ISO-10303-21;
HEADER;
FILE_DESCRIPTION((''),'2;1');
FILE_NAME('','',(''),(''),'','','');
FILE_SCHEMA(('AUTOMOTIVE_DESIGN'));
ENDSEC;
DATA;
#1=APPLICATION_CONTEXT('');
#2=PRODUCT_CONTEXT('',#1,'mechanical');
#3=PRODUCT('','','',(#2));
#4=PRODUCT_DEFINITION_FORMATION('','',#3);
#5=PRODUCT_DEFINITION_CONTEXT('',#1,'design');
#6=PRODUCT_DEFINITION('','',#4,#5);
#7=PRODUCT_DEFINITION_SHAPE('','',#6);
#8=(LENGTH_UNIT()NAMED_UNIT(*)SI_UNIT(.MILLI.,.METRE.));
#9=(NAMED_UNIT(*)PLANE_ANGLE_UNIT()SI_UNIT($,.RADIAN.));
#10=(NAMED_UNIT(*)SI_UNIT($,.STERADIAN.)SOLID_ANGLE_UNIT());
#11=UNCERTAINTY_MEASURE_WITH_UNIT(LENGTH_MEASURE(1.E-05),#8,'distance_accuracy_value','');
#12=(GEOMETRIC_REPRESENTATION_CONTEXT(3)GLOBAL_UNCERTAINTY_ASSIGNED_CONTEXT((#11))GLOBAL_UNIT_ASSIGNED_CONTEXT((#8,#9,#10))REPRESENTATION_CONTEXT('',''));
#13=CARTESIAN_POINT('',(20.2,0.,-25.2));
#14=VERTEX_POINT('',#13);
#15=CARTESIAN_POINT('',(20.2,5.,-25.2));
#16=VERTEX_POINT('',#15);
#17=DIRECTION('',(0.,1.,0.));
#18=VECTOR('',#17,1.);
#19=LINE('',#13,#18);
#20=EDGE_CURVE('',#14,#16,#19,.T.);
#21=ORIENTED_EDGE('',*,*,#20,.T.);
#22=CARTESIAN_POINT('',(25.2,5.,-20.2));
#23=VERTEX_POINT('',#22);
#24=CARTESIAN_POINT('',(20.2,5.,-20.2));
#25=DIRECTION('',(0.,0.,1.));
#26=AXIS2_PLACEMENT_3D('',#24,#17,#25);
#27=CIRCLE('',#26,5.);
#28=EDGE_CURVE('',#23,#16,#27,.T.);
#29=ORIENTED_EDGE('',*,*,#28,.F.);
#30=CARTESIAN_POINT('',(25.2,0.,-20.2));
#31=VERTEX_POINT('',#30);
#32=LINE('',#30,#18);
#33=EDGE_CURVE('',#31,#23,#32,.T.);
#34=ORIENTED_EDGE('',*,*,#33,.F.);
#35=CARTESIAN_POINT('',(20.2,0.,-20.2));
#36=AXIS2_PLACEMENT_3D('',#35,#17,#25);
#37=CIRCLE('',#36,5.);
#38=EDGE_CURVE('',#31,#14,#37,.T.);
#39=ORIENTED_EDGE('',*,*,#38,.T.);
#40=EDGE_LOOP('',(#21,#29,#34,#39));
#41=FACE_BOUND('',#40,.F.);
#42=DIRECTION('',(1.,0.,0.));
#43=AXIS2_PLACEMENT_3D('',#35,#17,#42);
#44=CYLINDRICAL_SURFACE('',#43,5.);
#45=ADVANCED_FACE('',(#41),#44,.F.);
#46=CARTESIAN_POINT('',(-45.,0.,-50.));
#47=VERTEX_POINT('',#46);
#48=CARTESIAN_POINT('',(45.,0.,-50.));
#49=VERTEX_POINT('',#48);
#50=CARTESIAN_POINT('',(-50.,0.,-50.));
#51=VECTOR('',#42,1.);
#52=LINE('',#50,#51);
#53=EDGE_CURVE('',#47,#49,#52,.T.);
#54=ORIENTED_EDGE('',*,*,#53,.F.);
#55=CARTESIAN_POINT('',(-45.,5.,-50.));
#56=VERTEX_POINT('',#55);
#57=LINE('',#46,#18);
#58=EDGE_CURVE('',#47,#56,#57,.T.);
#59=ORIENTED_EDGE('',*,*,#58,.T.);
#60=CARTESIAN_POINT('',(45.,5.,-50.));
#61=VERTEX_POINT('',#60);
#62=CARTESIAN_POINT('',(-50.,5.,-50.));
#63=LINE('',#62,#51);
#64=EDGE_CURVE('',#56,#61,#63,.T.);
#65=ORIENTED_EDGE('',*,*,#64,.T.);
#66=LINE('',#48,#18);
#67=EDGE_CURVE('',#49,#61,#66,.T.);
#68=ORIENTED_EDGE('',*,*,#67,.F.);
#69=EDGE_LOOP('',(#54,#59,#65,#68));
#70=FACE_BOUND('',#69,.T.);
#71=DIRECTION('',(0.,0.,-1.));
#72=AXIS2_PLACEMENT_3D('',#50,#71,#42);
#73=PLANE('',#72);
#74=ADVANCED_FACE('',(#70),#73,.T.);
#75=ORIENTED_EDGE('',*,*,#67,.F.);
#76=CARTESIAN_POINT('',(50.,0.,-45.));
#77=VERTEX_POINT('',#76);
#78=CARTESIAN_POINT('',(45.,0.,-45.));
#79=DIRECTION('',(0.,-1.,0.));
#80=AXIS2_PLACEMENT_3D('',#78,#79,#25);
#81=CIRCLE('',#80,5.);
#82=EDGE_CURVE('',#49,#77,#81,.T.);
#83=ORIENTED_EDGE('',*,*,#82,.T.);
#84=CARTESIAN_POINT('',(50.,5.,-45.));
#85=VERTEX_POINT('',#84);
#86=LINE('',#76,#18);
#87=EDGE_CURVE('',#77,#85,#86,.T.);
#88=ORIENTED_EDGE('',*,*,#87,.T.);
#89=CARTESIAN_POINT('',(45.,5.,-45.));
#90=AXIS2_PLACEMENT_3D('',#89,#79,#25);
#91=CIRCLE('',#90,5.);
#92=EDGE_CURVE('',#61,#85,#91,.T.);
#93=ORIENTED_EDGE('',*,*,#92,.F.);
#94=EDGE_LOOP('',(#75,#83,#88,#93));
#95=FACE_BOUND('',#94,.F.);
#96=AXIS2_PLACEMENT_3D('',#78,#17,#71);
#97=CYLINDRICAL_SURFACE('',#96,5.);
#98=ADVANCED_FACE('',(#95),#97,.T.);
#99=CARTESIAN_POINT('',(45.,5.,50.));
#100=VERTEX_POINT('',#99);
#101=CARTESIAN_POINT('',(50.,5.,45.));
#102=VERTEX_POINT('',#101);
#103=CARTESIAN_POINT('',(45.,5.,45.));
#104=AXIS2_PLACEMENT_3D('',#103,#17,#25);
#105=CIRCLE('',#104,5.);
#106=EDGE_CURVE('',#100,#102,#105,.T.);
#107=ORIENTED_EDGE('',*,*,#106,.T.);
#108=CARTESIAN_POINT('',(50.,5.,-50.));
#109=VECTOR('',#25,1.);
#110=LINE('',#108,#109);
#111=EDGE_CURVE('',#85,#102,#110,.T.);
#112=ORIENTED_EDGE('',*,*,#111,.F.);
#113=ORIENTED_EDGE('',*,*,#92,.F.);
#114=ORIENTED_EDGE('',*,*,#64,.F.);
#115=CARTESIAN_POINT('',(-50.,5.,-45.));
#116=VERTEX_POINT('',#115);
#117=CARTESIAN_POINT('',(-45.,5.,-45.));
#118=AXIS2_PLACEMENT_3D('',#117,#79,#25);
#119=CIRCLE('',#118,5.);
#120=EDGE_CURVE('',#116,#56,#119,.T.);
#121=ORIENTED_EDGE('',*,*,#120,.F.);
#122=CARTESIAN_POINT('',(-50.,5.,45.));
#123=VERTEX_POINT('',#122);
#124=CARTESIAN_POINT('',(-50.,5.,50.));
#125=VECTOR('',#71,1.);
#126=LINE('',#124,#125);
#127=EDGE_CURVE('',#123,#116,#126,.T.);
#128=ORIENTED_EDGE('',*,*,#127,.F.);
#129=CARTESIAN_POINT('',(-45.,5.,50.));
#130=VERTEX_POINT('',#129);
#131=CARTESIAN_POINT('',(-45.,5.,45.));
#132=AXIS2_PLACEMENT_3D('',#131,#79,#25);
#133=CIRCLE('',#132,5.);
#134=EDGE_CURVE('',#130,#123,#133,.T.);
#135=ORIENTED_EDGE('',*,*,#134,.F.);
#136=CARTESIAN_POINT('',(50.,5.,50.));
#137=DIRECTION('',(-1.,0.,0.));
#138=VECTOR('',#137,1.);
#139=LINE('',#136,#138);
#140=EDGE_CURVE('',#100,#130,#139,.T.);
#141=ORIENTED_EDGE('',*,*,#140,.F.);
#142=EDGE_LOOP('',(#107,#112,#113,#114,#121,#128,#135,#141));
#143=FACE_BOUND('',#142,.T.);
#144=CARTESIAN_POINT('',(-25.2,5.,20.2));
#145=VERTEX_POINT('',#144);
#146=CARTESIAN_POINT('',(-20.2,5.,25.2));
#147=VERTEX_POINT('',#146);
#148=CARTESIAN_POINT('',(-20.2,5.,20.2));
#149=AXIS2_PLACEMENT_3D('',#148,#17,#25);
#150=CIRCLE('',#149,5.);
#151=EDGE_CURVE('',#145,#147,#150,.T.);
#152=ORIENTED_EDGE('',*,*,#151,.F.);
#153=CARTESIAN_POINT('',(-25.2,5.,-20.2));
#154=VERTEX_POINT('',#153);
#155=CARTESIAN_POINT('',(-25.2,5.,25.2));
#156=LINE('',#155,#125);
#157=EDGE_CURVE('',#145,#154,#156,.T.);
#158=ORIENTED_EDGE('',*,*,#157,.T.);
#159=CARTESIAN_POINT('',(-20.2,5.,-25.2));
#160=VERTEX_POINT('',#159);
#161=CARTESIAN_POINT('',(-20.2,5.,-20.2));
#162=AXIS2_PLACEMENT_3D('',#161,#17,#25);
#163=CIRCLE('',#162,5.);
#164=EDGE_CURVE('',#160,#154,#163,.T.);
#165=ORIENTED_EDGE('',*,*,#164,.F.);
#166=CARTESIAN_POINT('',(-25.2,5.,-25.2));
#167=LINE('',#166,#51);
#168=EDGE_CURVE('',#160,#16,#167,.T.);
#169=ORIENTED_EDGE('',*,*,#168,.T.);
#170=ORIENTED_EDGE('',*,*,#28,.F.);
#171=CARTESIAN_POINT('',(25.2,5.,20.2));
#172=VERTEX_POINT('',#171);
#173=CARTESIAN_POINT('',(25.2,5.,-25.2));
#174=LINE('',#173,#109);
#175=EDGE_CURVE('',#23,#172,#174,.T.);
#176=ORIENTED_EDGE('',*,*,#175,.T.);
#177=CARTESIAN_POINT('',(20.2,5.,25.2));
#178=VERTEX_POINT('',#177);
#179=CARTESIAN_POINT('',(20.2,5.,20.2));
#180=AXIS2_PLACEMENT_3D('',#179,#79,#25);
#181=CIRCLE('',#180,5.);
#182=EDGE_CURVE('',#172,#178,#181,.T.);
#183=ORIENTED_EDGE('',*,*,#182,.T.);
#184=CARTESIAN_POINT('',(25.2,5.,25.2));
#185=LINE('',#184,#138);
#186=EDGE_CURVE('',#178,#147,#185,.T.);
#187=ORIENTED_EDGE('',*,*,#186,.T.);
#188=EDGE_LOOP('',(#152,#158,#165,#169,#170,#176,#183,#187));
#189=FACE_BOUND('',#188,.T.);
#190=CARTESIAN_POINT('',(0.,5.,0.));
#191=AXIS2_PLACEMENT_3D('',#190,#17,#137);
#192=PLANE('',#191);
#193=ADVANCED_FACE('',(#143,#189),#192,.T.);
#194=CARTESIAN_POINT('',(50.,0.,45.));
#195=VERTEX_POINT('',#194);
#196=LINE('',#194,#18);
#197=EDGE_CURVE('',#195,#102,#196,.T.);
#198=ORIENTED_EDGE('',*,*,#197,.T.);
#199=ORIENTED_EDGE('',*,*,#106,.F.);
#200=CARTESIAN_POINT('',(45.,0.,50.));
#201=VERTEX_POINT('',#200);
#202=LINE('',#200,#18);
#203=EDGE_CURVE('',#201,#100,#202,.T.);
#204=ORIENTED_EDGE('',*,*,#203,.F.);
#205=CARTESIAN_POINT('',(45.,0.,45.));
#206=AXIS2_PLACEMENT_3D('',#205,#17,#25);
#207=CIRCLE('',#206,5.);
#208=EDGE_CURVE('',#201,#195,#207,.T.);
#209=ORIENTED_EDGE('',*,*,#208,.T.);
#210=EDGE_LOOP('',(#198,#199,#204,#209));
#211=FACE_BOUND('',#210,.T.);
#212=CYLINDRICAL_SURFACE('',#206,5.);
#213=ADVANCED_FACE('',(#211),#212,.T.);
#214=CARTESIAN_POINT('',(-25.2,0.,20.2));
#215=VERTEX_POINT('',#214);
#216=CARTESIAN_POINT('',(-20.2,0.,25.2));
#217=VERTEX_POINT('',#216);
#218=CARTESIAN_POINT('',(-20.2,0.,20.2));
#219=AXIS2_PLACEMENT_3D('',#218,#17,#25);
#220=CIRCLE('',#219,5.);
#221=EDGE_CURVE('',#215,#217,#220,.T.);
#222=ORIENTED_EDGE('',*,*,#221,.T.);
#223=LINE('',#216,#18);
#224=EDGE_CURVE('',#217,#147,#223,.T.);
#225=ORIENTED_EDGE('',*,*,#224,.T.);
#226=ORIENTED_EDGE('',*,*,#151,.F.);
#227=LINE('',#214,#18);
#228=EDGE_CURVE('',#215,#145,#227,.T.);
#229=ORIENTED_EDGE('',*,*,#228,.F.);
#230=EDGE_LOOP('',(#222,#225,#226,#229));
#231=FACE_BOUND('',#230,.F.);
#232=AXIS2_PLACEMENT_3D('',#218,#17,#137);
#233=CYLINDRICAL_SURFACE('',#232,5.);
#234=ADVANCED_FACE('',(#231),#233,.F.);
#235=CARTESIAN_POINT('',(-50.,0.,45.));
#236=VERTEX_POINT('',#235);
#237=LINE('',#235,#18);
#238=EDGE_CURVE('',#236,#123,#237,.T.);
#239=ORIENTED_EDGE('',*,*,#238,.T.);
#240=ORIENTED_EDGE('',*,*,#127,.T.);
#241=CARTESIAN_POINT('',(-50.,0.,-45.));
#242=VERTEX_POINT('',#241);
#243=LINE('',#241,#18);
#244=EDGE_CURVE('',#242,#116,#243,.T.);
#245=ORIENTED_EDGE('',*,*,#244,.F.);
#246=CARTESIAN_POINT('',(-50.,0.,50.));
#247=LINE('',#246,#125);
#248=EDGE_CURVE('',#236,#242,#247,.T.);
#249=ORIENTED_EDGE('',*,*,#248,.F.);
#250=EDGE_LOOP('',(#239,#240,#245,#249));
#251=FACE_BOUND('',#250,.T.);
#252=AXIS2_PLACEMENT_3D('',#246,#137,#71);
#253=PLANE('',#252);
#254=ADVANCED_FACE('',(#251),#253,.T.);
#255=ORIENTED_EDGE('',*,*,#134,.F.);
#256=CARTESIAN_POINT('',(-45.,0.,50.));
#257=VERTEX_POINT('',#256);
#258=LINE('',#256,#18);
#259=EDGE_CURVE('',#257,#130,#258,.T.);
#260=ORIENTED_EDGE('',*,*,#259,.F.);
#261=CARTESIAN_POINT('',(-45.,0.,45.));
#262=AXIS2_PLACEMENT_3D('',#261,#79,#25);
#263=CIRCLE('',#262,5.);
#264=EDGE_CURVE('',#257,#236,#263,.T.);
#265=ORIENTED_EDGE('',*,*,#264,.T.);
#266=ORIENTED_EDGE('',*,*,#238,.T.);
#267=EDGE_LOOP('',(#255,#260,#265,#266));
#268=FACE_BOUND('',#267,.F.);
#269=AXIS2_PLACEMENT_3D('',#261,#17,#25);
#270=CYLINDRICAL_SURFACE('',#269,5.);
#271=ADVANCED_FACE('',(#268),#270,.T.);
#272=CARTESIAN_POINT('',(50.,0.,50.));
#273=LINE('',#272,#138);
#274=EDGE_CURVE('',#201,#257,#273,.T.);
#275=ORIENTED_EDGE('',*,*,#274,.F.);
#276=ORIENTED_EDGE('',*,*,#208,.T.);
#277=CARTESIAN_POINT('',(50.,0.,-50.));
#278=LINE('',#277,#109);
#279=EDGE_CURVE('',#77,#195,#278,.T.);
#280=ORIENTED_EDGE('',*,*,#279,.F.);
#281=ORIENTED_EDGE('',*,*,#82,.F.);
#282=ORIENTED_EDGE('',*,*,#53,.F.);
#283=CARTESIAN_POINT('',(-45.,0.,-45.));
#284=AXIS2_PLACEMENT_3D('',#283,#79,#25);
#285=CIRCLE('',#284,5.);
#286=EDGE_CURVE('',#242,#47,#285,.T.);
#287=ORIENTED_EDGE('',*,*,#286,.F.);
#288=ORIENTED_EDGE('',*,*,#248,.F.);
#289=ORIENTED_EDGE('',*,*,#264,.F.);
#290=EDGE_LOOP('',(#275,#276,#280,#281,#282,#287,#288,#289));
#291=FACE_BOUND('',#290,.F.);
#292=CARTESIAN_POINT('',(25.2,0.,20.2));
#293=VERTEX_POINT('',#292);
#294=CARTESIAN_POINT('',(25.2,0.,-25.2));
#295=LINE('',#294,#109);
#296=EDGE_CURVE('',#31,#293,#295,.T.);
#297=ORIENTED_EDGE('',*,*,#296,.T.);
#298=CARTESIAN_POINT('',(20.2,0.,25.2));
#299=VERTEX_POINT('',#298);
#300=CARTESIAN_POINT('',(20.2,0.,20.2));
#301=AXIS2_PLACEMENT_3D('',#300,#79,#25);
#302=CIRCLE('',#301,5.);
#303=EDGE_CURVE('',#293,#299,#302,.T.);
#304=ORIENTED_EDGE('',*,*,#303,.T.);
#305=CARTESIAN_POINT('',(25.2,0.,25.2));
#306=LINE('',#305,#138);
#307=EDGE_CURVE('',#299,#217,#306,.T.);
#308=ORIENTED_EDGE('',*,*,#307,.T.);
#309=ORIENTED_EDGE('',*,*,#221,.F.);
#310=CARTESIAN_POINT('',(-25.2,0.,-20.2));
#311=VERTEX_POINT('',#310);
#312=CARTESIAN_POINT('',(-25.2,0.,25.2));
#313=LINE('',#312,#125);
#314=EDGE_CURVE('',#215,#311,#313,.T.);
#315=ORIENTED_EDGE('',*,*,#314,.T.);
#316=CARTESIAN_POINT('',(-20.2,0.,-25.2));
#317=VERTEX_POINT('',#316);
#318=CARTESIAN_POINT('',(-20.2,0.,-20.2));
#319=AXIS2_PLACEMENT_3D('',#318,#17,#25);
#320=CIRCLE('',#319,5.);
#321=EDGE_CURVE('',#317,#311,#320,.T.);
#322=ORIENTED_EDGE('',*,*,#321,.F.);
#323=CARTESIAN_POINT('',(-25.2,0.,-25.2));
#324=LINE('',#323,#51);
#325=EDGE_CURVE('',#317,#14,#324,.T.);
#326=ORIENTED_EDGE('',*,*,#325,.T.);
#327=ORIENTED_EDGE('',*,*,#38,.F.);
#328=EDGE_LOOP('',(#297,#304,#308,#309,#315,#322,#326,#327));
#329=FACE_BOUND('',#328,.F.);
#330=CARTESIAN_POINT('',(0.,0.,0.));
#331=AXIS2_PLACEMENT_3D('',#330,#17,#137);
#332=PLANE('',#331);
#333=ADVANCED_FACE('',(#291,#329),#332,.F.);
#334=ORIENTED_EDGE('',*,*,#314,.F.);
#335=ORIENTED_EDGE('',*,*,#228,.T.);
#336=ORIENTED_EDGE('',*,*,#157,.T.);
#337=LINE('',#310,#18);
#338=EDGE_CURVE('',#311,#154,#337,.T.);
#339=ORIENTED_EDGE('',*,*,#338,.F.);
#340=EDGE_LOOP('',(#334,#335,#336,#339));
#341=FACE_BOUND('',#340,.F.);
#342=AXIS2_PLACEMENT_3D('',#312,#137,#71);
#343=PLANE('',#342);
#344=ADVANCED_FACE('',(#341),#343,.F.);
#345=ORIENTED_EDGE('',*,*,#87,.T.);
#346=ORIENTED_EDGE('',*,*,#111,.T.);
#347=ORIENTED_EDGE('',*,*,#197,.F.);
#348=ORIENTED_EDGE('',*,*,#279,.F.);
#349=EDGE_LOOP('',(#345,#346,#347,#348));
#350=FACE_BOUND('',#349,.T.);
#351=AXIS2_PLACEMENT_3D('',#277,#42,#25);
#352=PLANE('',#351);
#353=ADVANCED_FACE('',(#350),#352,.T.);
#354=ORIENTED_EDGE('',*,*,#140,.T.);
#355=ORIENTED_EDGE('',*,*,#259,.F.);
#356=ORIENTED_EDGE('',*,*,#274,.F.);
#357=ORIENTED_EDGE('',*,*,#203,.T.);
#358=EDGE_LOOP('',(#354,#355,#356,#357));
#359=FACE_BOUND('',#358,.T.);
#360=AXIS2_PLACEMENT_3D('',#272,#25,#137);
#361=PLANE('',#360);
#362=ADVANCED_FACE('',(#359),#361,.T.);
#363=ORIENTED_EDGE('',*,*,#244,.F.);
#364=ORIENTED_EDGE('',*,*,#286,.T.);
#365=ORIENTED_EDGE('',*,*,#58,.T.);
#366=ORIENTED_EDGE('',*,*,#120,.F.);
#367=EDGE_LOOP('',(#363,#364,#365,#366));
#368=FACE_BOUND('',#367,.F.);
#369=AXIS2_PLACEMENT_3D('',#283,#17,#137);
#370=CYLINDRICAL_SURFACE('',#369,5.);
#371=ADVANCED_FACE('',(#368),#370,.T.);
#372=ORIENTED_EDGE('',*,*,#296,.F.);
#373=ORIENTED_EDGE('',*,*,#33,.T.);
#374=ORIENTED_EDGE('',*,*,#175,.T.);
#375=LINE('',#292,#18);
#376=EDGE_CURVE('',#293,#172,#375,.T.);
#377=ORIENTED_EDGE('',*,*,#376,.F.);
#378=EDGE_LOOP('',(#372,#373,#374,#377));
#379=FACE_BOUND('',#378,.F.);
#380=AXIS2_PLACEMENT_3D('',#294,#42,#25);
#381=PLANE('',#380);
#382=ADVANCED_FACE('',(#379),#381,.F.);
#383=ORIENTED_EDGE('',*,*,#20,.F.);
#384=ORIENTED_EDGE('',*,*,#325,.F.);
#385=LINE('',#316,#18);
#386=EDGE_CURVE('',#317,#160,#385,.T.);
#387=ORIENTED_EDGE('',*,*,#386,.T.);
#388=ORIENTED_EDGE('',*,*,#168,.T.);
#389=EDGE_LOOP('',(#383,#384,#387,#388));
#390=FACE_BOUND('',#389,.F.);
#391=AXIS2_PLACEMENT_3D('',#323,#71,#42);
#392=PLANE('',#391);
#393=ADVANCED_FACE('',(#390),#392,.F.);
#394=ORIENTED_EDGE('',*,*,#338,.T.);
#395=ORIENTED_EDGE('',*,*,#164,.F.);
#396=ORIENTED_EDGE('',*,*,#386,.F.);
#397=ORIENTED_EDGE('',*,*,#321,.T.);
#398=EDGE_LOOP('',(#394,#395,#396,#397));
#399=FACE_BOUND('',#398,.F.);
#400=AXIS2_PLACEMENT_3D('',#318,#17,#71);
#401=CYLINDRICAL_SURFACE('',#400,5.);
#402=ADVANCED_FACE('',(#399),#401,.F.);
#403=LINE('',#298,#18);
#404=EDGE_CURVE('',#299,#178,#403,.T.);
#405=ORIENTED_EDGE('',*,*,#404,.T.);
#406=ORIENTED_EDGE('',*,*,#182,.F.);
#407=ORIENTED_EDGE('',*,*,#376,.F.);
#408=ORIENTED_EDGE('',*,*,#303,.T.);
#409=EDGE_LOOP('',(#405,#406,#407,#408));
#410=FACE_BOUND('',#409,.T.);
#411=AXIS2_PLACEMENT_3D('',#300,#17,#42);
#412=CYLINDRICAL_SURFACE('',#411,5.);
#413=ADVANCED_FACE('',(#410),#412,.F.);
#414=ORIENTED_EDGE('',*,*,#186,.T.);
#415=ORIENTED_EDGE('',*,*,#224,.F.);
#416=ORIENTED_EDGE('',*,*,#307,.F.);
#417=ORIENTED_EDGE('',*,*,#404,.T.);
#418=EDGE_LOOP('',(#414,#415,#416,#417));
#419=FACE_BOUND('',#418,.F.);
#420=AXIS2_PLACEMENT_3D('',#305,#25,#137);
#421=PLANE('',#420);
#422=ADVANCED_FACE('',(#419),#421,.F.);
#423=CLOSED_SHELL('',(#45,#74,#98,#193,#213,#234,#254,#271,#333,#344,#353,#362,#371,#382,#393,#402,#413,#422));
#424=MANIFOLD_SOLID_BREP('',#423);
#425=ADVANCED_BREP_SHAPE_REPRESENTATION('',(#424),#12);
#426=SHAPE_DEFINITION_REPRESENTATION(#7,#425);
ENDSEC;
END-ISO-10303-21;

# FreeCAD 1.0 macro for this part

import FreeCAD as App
import Part
import Sketcher
Q = App.Units.Quantity


def edges_at(feature, points):
    """Names of the edges that pass closest to the given points."""
    edges = feature.Shape.Edges
    near = lambda p: min(range(len(edges)), key=lambda i: edges[i].distToShape(Part.Vertex(*p))[0])
    return sorted({f"Edge{near(p) + 1}" for p in points})

doc = App.newDocument("Part")
params = doc.addObject("Spreadsheet::Sheet", "Params")
for row, (alias, value) in enumerate([
    ("sketch1_width", "100 mm"),
    ("sketch1_width2", "50.4 mm"),
    ("pad1_length", "5 mm"),
    ("fillet_radius", "5 mm"),
], start=1):
    params.set(f"A{row}", alias)
    params.set(f"B{row}", "=" + value)
    params.setAlias(f"B{row}", alias)

body = doc.addObject("PartDesign::Body", "Body")

# Sketch on XZ plane
sketch1 = body.newObject("Sketcher::SketchObject", "Sketch")
sketch1.AttachmentSupport = (doc.getObject("XZ_Plane"), [""])
sketch1.MapMode = "FlatFace"
sketch1.addGeometry(Part.LineSegment(App.Vector(-50, 50, 0), App.Vector(50, 50, 0)), False)
sketch1.addGeometry(Part.LineSegment(App.Vector(50, 50, 0), App.Vector(50, -50, 0)), False)
sketch1.addGeometry(Part.LineSegment(App.Vector(50, -50, 0), App.Vector(-50, -50, 0)), False)
sketch1.addGeometry(Part.LineSegment(App.Vector(-50, -50, 0), App.Vector(-50, 50, 0)), False)
sketch1.addGeometry(Part.LineSegment(App.Vector(25, -25, 0), App.Vector(25, 25, 0)), False)
sketch1.addGeometry(Part.LineSegment(App.Vector(25, 25, 0), App.Vector(-25, 25, 0)), False)
sketch1.addGeometry(Part.LineSegment(App.Vector(-25, 25, 0), App.Vector(-25, -25, 0)), False)
sketch1.addGeometry(Part.LineSegment(App.Vector(-25, -25, 0), App.Vector(25, -25, 0)), False)
sketch1.addConstraint(Sketcher.Constraint("Coincident", 0, 2, 1, 1))
sketch1.addConstraint(Sketcher.Constraint("Coincident", 1, 2, 2, 1))
sketch1.addConstraint(Sketcher.Constraint("Coincident", 2, 2, 3, 1))
sketch1.addConstraint(Sketcher.Constraint("Coincident", 3, 2, 0, 1))
sketch1.addConstraint(Sketcher.Constraint("Coincident", 4, 2, 5, 1))
sketch1.addConstraint(Sketcher.Constraint("Coincident", 5, 2, 6, 1))
sketch1.addConstraint(Sketcher.Constraint("Coincident", 6, 2, 7, 1))
sketch1.addConstraint(Sketcher.Constraint("Coincident", 7, 2, 4, 1))
sketch1.addConstraint(Sketcher.Constraint("Horizontal", 0))
sketch1.addConstraint(Sketcher.Constraint("Vertical", 1))
sketch1.addConstraint(Sketcher.Constraint("Horizontal", 2))
sketch1.addConstraint(Sketcher.Constraint("Vertical", 3))
sketch1.addConstraint(Sketcher.Constraint("Vertical", 4))
sketch1.addConstraint(Sketcher.Constraint("Horizontal", 5))
sketch1.addConstraint(Sketcher.Constraint("Vertical", 6))
sketch1.addConstraint(Sketcher.Constraint("Horizontal", 7))
sketch1.addConstraint(Sketcher.Constraint("Symmetric", 0, 2, 2, 2, -1, 1))
sketch1.addConstraint(Sketcher.Constraint("Symmetric", 4, 2, 6, 2, -1, 1))
sketch1.addConstraint(Sketcher.Constraint("Equal", 2, 1))
sketch1.addConstraint(Sketcher.Constraint("Equal", 7, 4))
sketch1.addConstraint(Sketcher.Constraint("DistanceX", 0, 1, 0, 2, Q("100 mm")))
sketch1.addConstraint(Sketcher.Constraint("DistanceX", 5, 2, 5, 1, Q("50.4 mm")))
sketch1.setExpression("Constraints[20]", "Params.sketch1_width")
sketch1.setExpression("Constraints[21]", "Params.sketch1_width2")
pad1 = body.newObject("PartDesign::Pad", "Pad")
pad1.Profile = sketch1
pad1.setExpression("Length", "Params.pad1_length")
pad1.Reversed = True
doc.recompute()

fillet = body.newObject("PartDesign::Fillet", "Fillet")
fillet.Base = (pad1, edges_at(pad1, [
    (50, 2.5, 50),
    (50, 2.5, -50),
    (-50, 2.5, 50),
    (-50, 2.5, -50),
    (-25.2, 2.5, -25.2),
    (25.2, 2.5, -25.2),
    (-25.2, 2.5, 25.2),
    (25.2, 2.5, 25.2),
]))
fillet.setExpression("Radius", "Params.fillet_radius")

doc.recompute()
